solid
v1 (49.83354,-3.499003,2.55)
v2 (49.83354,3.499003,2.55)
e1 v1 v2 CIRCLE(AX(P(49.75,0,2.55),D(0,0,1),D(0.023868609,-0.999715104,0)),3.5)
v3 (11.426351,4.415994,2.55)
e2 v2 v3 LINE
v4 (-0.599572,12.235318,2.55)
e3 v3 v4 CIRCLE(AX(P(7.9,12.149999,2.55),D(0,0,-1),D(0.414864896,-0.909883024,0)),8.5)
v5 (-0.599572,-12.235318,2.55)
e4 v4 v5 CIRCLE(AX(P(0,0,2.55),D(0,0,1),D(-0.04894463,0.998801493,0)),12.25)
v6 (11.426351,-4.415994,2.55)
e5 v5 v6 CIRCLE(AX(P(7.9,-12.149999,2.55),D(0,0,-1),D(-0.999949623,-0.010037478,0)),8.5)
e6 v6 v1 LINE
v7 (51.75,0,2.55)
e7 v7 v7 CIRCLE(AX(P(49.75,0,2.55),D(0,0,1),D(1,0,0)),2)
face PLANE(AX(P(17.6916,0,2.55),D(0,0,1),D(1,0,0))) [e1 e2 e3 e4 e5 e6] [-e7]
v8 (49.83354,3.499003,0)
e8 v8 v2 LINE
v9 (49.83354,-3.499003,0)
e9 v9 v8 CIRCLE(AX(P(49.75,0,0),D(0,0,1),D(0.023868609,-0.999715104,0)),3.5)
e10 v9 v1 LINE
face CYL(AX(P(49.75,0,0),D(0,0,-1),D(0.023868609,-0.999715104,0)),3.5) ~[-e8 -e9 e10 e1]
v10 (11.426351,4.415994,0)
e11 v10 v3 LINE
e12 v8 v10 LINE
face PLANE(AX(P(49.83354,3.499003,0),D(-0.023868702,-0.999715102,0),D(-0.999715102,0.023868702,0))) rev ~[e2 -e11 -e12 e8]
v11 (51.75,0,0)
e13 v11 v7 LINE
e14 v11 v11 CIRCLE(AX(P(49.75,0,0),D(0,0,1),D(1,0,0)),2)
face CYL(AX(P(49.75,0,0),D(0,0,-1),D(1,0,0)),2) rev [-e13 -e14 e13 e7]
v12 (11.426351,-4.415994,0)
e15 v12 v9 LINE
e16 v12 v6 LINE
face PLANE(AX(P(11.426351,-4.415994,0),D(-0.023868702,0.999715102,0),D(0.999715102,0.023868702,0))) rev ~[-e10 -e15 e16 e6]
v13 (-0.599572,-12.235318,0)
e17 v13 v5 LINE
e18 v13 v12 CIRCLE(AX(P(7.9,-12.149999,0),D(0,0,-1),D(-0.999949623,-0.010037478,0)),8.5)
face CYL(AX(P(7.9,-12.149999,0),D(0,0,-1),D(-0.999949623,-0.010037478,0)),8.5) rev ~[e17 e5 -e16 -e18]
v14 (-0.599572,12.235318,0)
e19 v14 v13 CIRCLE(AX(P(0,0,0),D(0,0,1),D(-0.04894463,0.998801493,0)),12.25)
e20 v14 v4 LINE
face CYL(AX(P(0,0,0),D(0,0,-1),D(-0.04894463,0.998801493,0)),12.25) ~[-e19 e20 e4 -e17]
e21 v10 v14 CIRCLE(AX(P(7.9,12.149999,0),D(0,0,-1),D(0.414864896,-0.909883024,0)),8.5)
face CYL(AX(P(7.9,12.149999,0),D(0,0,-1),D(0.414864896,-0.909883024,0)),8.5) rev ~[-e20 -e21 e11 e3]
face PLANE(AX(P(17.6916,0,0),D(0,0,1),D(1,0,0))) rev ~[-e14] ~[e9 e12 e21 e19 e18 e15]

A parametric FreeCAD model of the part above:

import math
import FreeCAD as App
import Part
import Sketcher
from FreeCAD import Vector
Q = App.Units.Quantity

doc = App.newDocument("Part")
params = doc.addObject("Spreadsheet::Sheet", "Params")
for row, (alias, value) in enumerate([
    ("sketch1_diameter", "4 mm"),
    ("sketch1_radius", "8.5 mm"),
    ("sketch1_radius2", "3.5 mm"),
    ("sketch1_radius3", "12.25 mm"),
    ("pad1_length", "2.55 mm"),
], start=1):
    params.set(f"A{row}", alias)
    params.set(f"B{row}", "=" + value)
    params.setAlias(f"B{row}", alias)

body = doc.addObject("PartDesign::Body", "Body")

sketch1 = doc.addObject("Sketcher::SketchObject", "Sketch")
body.addObject(sketch1)
sketch1.AttachmentSupport = (doc.XY_Plane, [""])
sketch1.MapMode = "FlatFace"
sketch1.addGeometry(Part.ArcOfCircle(Part.Circle(Vector(7.9, 12.1, 0), Vector(0, 0, 1), 8.5), math.radians(179), math.radians(295)), False)
sketch1.addGeometry(Part.ArcOfCircle(Part.Circle(Vector(0, 0, 0), Vector(0, 0, 1), 12.2), math.radians(93), math.radians(267)), False)
sketch1.addGeometry(Part.ArcOfCircle(Part.Circle(Vector(7.9, -12.1, 0), Vector(0, 0, 1), 8.5), math.radians(65), math.radians(181)), False)
sketch1.addGeometry(Part.LineSegment(Vector(11.4, -4.4, 0), Vector(49.8, -3.5, 0)), False)
sketch1.addGeometry(Part.ArcOfCircle(Part.Circle(Vector(49.7, 0, 0), Vector(0, 0, 1), 3.5), math.radians(-89), math.radians(89)), False)
sketch1.addGeometry(Part.LineSegment(Vector(49.8, 3.5, 0), Vector(11.4, 4.4, 0)), False)
sketch1.addGeometry(Part.Circle(Vector(49.8, 0, 0), Vector(0, 0, 1), 2), False)
sketch1.addConstraint(Sketcher.Constraint("Coincident", 0, 1, 1, 1))
sketch1.addConstraint(Sketcher.Constraint("Coincident", 1, 2, 2, 2))
sketch1.addConstraint(Sketcher.Constraint("Coincident", 2, 1, 3, 1))
sketch1.addConstraint(Sketcher.Constraint("Tangent", 3, 2, 4, 1))
sketch1.addConstraint(Sketcher.Constraint("Tangent", 4, 2, 5, 1))
sketch1.addConstraint(Sketcher.Constraint("Coincident", 5, 2, 0, 2))
sketch1.addConstraint(Sketcher.Constraint("Coincident", 1, 3, -1, 1))
sketch1.addConstraint(Sketcher.Constraint("Coincident", 6, 3, 4, 3))
sketch1.addConstraint(Sketcher.Constraint("Equal", 0, 2))
sketch1.addConstraint(Sketcher.Constraint("Symmetric", 0, 3, 2, 3, -1))
sketch1.addConstraint(Sketcher.Constraint("Symmetric", 3, 2, 4, 2, -1))
sketch1.addConstraint(Sketcher.Constraint("Diameter", 6, Q("4 mm")))
sketch1.addConstraint(Sketcher.Constraint("Radius", 0, Q("8.5 mm")))
sketch1.addConstraint(Sketcher.Constraint("Radius", 4, Q("3.5 mm")))
sketch1.addConstraint(Sketcher.Constraint("Radius", 1, Q("12.25 mm")))
sketch1.addConstraint(Sketcher.Constraint("DistanceX", -1, 1, 0, 3, Q("7.9 mm")))
sketch1.addConstraint(Sketcher.Constraint("DistanceY", 2, 3, 0, 3, Q("24.299999 mm")))
sketch1.addConstraint(Sketcher.Constraint("DistanceX", -1, 1, 4, 3, Q("49.75 mm")))
sketch1.addConstraint(Sketcher.Constraint("DistanceX", -1, 1, 2, 1, Q("11.426351 mm")))
sketch1.setExpression("Constraints[11]", "Params.sketch1_diameter")
sketch1.setExpression("Constraints[12]", "Params.sketch1_radius")
sketch1.setExpression("Constraints[13]", "Params.sketch1_radius2")
sketch1.setExpression("Constraints[14]", "Params.sketch1_radius3")
pad1 = doc.addObject("PartDesign::Pad", "Pad")
body.addObject(pad1)
pad1.Profile = sketch1
pad1.setExpression("Length", "Params.pad1_length")

doc.recompute()
